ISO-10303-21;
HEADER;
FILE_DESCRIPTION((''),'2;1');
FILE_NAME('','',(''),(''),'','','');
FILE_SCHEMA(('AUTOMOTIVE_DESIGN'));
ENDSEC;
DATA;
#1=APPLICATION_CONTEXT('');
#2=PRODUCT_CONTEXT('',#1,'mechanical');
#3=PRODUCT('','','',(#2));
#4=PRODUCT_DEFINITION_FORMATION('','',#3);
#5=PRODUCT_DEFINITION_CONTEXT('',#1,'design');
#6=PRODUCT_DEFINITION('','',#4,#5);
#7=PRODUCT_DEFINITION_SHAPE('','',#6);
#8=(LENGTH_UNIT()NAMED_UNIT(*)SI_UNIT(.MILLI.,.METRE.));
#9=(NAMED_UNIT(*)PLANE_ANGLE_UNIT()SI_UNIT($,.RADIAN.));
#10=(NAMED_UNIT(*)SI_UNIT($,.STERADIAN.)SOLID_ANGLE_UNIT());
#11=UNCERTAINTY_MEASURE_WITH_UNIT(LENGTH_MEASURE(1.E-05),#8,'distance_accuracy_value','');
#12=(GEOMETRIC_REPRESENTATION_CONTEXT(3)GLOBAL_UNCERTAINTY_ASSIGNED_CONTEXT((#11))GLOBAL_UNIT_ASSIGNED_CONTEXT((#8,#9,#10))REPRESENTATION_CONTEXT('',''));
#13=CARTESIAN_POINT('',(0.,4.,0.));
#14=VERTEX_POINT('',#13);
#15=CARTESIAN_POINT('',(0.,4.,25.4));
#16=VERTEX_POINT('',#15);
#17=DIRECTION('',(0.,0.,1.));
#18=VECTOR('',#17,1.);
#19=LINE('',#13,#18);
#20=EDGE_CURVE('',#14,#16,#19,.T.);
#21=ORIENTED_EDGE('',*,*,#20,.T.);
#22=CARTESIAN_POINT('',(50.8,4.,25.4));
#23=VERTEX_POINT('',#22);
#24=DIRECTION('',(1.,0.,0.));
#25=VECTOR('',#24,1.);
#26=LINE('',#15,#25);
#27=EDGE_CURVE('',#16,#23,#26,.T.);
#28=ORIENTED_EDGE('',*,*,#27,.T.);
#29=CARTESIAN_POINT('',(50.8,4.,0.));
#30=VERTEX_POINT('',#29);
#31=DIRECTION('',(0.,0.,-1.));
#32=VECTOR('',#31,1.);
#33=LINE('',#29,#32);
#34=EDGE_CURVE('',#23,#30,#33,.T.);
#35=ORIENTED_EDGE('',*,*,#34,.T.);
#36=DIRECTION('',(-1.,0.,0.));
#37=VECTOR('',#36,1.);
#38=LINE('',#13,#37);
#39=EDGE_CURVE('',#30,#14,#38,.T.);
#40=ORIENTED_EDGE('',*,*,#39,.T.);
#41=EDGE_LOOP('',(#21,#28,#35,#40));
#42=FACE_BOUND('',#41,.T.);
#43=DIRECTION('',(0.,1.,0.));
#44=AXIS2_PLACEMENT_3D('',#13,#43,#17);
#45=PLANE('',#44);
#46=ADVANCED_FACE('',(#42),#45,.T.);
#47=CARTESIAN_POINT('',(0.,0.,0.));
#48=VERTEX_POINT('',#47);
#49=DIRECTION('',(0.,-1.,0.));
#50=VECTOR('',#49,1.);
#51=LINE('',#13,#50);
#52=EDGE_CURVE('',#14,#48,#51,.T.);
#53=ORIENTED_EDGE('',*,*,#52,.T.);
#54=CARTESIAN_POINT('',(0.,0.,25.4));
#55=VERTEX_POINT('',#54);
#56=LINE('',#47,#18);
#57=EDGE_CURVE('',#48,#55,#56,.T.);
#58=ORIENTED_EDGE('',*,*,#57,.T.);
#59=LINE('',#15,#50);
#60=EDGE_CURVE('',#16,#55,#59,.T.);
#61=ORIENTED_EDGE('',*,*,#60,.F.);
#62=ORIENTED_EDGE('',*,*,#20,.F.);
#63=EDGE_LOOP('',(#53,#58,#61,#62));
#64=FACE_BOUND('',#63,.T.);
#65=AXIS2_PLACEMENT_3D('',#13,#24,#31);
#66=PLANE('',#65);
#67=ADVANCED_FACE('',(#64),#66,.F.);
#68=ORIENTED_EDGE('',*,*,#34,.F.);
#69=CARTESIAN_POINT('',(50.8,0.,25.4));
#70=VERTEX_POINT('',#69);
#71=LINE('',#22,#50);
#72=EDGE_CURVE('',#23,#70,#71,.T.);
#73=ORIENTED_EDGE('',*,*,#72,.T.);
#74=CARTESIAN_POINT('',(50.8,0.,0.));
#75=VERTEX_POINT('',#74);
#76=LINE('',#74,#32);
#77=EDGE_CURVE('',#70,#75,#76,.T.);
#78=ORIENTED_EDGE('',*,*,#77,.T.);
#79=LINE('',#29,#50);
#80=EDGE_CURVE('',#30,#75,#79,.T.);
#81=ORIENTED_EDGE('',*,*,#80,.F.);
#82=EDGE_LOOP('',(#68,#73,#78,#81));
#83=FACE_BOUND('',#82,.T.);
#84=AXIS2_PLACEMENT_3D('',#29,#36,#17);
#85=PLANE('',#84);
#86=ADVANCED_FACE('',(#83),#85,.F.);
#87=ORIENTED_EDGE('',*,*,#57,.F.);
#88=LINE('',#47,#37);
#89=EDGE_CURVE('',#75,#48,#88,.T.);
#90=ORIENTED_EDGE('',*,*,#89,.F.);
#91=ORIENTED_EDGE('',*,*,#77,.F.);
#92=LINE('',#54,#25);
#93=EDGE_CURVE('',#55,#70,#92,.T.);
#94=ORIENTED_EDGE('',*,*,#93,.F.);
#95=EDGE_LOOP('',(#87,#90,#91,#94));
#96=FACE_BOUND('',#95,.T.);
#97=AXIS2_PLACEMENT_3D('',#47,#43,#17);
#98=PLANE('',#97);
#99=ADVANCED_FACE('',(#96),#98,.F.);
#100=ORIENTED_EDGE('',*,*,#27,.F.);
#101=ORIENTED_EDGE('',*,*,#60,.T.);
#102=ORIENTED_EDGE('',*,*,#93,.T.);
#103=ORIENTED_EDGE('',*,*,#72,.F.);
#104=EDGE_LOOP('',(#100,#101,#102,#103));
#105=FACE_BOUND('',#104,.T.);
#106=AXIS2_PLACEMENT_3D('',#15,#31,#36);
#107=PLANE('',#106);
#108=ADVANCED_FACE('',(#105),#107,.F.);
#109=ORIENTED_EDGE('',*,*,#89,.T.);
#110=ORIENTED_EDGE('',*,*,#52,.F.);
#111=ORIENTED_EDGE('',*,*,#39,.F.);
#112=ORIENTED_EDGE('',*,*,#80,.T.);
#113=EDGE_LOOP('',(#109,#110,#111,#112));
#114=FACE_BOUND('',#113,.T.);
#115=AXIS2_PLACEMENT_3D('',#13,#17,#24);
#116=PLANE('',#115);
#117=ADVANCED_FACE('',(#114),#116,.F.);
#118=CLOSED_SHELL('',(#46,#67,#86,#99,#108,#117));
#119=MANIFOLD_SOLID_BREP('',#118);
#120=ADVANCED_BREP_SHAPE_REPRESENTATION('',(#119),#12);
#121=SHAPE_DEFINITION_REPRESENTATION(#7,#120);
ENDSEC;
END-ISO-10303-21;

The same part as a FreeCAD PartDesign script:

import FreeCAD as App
import Part
import Sketcher

V = App.Vector
Q = App.Units.Quantity


def add_polygon(sketch, points):
    """Adds a closed chain of lines whose ends are joined by coincident constraints."""
    first, n = sketch.GeometryCount, len(points)
    for a, b in zip(points, points[1:] + points[:1]):
        sketch.addGeometry(Part.LineSegment(App.Vector(*a, 0), App.Vector(*b, 0)), False)
    for i in range(n):
        sketch.addConstraint(Sketcher.Constraint("Coincident", first + i, 2, first + (i + 1) % n, 1))

doc = App.newDocument("Part")
params = doc.addObject("Spreadsheet::Sheet", "Params")
for row, (alias, value) in enumerate([
    ("sketch1_width", "2 in"),
    ("sketch1_height", "1 in"),
    ("pad1_length", "4 mm"),
], start=1):
    params.set(f"A{row}", alias)
    params.set(f"B{row}", "=" + value)
    params.setAlias(f"B{row}", alias)

body = doc.addObject("PartDesign::Body", "Body")

sketch1 = doc.addObject("Sketcher::SketchObject", "Sketch")
body.addObject(sketch1)
sketch1.AttachmentSupport = (doc.XZ_Plane, [""])
sketch1.MapMode = "FlatFace"
add_polygon(sketch1, [(0, 0), (0, 25.4), (50.8, 25.4), (50.8, 0)])
sketch1.addConstraint([
    Sketcher.Constraint("Vertical", 0),
    Sketcher.Constraint("Horizontal", 1),
    Sketcher.Constraint("Vertical", 2),
    Sketcher.Constraint("Horizontal", 3),
    Sketcher.Constraint("Coincident", 3, 2, -1, 1),
    Sketcher.Constraint("DistanceX", 1, 1, 1, 2, Q("2 in")),
    Sketcher.Constraint("DistanceY", 0, 1, 0, 2, Q("1 in")),
])
sketch1.setExpression("Constraints[9]", "Params.sketch1_width")
sketch1.setExpression("Constraints[10]", "Params.sketch1_height")
pad1 = doc.addObject("PartDesign::Pad", "Pad")
body.addObject(pad1)
pad1.Profile = sketch1
pad1.setExpression("Length", "Params.pad1_length")
pad1.Reversed = True

doc.recompute()
